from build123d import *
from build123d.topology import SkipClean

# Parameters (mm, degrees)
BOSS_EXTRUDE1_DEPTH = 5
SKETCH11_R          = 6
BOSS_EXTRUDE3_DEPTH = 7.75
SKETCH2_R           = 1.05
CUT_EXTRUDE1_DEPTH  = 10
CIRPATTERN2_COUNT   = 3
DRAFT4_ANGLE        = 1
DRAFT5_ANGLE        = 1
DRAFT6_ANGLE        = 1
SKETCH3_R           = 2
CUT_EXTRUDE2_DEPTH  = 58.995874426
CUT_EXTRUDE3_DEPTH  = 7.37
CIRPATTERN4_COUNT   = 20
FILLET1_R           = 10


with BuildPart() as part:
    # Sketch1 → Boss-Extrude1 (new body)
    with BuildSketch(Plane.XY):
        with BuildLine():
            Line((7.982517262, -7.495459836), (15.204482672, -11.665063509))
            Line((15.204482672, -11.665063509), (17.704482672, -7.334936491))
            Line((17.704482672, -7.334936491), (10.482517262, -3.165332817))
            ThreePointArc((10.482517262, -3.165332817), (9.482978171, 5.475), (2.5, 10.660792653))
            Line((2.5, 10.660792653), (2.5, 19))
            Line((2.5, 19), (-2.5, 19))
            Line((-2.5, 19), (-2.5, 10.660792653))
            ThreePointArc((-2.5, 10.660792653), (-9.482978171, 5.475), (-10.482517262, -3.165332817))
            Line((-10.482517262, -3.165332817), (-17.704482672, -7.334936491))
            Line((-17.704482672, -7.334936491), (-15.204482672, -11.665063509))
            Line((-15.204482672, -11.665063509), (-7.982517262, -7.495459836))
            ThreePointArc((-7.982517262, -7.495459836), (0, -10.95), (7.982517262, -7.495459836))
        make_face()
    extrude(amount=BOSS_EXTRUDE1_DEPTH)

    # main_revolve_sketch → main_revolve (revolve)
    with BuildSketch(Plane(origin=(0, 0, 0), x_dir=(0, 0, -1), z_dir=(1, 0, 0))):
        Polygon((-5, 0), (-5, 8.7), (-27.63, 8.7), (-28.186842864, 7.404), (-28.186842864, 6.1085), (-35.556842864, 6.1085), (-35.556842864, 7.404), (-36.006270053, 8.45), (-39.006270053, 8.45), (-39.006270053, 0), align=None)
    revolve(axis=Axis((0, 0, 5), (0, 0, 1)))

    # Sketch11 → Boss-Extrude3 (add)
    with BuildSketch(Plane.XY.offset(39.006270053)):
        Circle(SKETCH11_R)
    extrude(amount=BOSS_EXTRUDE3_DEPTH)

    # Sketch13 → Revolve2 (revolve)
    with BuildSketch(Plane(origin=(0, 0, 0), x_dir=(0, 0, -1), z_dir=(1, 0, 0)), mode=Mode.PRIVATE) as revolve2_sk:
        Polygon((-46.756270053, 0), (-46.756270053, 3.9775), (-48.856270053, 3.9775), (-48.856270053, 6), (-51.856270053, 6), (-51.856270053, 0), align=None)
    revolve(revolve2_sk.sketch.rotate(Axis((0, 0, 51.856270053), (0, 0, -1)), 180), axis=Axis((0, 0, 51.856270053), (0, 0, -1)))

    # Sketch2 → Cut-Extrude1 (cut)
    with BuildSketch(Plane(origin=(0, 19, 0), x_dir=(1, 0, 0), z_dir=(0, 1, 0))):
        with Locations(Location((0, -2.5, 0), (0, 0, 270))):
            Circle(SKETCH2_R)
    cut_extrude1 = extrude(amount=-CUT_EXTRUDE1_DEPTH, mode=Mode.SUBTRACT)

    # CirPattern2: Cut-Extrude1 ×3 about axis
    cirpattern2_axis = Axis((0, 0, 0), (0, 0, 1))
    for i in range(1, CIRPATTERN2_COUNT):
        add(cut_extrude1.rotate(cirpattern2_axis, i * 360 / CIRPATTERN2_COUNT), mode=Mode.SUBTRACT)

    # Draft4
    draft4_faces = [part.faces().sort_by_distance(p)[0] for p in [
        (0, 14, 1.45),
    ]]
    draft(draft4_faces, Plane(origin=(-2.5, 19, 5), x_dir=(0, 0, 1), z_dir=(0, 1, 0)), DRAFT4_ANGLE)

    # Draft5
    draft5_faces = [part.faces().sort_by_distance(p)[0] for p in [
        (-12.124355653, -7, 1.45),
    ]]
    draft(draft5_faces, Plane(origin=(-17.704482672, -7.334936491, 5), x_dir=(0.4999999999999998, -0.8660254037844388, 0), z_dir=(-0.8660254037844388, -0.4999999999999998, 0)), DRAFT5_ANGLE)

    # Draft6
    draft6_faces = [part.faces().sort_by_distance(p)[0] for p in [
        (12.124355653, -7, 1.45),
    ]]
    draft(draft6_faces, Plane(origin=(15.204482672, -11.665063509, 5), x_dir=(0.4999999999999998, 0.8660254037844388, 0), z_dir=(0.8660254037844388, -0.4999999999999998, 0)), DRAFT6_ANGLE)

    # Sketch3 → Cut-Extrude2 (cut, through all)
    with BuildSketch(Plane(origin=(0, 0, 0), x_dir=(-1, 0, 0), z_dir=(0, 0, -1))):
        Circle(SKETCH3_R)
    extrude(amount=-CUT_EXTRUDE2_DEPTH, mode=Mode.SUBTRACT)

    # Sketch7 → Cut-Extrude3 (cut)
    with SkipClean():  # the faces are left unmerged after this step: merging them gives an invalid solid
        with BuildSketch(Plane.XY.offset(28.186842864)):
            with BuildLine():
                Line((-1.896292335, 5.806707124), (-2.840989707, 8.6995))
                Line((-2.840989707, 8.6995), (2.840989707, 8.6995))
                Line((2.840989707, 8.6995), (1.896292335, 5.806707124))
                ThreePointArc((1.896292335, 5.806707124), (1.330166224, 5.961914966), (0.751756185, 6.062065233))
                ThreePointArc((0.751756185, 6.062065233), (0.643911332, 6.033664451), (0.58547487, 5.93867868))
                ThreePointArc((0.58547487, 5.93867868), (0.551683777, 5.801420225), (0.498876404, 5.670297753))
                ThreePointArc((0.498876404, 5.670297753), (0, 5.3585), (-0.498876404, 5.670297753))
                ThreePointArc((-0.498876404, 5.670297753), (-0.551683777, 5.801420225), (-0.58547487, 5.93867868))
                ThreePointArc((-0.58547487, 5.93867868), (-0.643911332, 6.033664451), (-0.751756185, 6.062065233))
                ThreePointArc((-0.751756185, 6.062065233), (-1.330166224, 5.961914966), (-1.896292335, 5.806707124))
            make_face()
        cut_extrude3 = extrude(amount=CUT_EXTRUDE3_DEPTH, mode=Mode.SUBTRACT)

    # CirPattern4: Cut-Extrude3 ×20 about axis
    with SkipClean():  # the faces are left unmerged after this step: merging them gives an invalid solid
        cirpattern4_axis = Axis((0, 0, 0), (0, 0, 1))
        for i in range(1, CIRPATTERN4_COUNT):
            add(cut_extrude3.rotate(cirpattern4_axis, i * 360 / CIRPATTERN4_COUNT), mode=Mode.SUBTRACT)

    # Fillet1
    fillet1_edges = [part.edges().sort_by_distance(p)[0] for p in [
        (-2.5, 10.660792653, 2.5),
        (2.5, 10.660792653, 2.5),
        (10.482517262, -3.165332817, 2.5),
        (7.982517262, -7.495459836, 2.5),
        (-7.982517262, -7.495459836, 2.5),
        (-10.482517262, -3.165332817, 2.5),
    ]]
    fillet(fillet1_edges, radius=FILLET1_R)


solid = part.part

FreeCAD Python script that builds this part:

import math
import FreeCAD as App
import Part
import Sketcher
Q = App.Units.Quantity


def edges_at(feature, points):
    """Names of the edges that pass closest to the given points."""
    edges = feature.Shape.Edges
    near = lambda p: min(range(len(edges)), key=lambda i: edges[i].distToShape(Part.Vertex(*p))[0])
    return sorted({f"Edge{near(p) + 1}" for p in points})


def faces_at(feature, points):
    """Names of the faces that lie closest to the given points."""
    faces = feature.Shape.Faces
    near = lambda p: min(range(len(faces)), key=lambda i: faces[i].distToShape(Part.Vertex(*p))[0])
    return sorted({f"Face{near(p) + 1}" for p in points})


def add_polygon(sketch, points):
    """Adds a closed chain of lines whose ends are joined by coincident constraints."""
    first, n = sketch.GeometryCount, len(points)
    for a, b in zip(points, points[1:] + points[:1]):
        sketch.addGeometry(Part.LineSegment(App.Vector(*a, 0), App.Vector(*b, 0)), False)
    for i in range(n):
        sketch.addConstraint(Sketcher.Constraint("Coincident", first + i, 2, first + (i + 1) % n, 1))

doc = App.newDocument("Part")
params = doc.addObject("Spreadsheet::Sheet", "Params")
for row, (alias, value) in enumerate([
    ("sketch1_width", "5 mm"),
    ("sketch1_radius", "10.95 mm"),
    ("sketch1_length", "5 mm"),
    ("pad1_length", "5 mm"),
    ("sketch2_height", "3 mm"),
    ("sketch2_width", "8.7 mm"),
    ("sketch2_width2", "8.45 mm"),
    ("sketch2_height2", "22.63 mm"),
    ("sketch2_height3", "7.37 mm"),
    ("revolution_angle", "360 deg"),
    ("sketch3_diameter", "12 mm"),
    ("pad2_length", "7.75 mm"),
    ("sketch4_width", "6 mm"),
    ("sketch4_height", "3 mm"),
    ("sketch4_height2", "2.1 mm"),
    ("revolution2_angle", "360 deg"),
    ("sketch5_diameter", "2.1 mm"),
    ("pocket1_length", "10 mm"),
    ("draft_angle", "1 deg"),
    ("draft2_angle", "1 deg"),
    ("draft3_angle", "1 deg"),
    ("sketch6_diameter", "4 mm"),
    ("sketch7_radius", "1 mm"),
    ("sketch7_radius2", "0.15 mm"),
    ("pocket3_length", "7.37 mm"),
    ("fillet_radius", "10 mm"),
], start=1):
    params.set(f"A{row}", alias)
    params.set(f"B{row}", "=" + value)
    params.setAlias(f"B{row}", alias)

body = doc.addObject("PartDesign::Body", "Body")

sketch1 = body.newObject("Sketcher::SketchObject", "Sketch")
sketch1.AttachmentSupport = (doc.getObject("XY_Plane"), [""])
sketch1.MapMode = "FlatFace"
sketch1.addGeometry(Part.LineSegment(App.Vector(8, -7.5, 0), App.Vector(15.2, -11.7, 0)), False)
sketch1.addGeometry(Part.LineSegment(App.Vector(15.2, -11.7, 0), App.Vector(17.7, -7.3, 0)), False)
sketch1.addGeometry(Part.LineSegment(App.Vector(17.7, -7.3, 0), App.Vector(10.5, -3.2, 0)), False)
sketch1.addGeometry(Part.ArcOfCircle(Part.Circle(App.Vector(0, 0, 0), App.Vector(0, 0, 1), 10.9), math.radians(-17), math.radians(77)), False)
sketch1.addGeometry(Part.LineSegment(App.Vector(2.5, 10.7, 0), App.Vector(2.5, 19, 0)), False)
sketch1.addGeometry(Part.LineSegment(App.Vector(2.5, 19, 0), App.Vector(-2.5, 19, 0)), False)
sketch1.addGeometry(Part.LineSegment(App.Vector(-2.5, 19, 0), App.Vector(-2.5, 10.7, 0)), False)
sketch1.addGeometry(Part.ArcOfCircle(Part.Circle(App.Vector(0, 0, 0), App.Vector(0, 0, 1), 10.9), math.radians(103), math.radians(197)), False)
sketch1.addGeometry(Part.LineSegment(App.Vector(-10.5, -3.2, 0), App.Vector(-17.7, -7.3, 0)), False)
sketch1.addGeometry(Part.LineSegment(App.Vector(-17.7, -7.3, 0), App.Vector(-15.2, -11.7, 0)), False)
sketch1.addGeometry(Part.LineSegment(App.Vector(-15.2, -11.7, 0), App.Vector(-8, -7.5, 0)), False)
sketch1.addGeometry(Part.ArcOfCircle(Part.Circle(App.Vector(0, 0, 0), App.Vector(0, 0, 1), 10.9), math.radians(-137), math.radians(-43)), False)
sketch1.addConstraint(Sketcher.Constraint("Coincident", 0, 2, 1, 1))
sketch1.addConstraint(Sketcher.Constraint("Coincident", 1, 2, 2, 1))
sketch1.addConstraint(Sketcher.Constraint("Coincident", 2, 2, 3, 1))
sketch1.addConstraint(Sketcher.Constraint("Coincident", 3, 2, 4, 1))
sketch1.addConstraint(Sketcher.Constraint("Coincident", 4, 2, 5, 1))
sketch1.addConstraint(Sketcher.Constraint("Coincident", 5, 2, 6, 1))
sketch1.addConstraint(Sketcher.Constraint("Coincident", 6, 2, 7, 1))
sketch1.addConstraint(Sketcher.Constraint("Coincident", 7, 2, 8, 1))
sketch1.addConstraint(Sketcher.Constraint("Coincident", 8, 2, 9, 1))
sketch1.addConstraint(Sketcher.Constraint("Coincident", 9, 2, 10, 1))
sketch1.addConstraint(Sketcher.Constraint("Coincident", 10, 2, 11, 1))
sketch1.addConstraint(Sketcher.Constraint("Coincident", 11, 2, 0, 1))
sketch1.addConstraint(Sketcher.Constraint("Vertical", 4))
sketch1.addConstraint(Sketcher.Constraint("Horizontal", 5))
sketch1.addConstraint(Sketcher.Constraint("Vertical", 6))
sketch1.addConstraint(Sketcher.Constraint("Coincident", 3, 3, -1, 1))
sketch1.addConstraint(Sketcher.Constraint("Coincident", 7, 3, -1, 1))
sketch1.addConstraint(Sketcher.Constraint("Coincident", 11, 3, -1, 1))
sketch1.addConstraint(Sketcher.Constraint("Equal", 3, 7))
sketch1.addConstraint(Sketcher.Constraint("Equal", 7, 11))
sketch1.addConstraint(Sketcher.Constraint("Symmetric", 1, 2, 8, 2, -2))
sketch1.addConstraint(Sketcher.Constraint("Symmetric", 0, 2, 9, 2, -2))
sketch1.addConstraint(Sketcher.Constraint("Perpendicular", 0, 1))
sketch1.addConstraint(Sketcher.Constraint("Perpendicular", 1, 2))
sketch1.addConstraint(Sketcher.Constraint("Perpendicular", 8, 9))
sketch1.addConstraint(Sketcher.Constraint("Perpendicular", 9, 10))
sketch1.addConstraint(Sketcher.Constraint("Horizontal", 3, 2, 6, 2))
sketch1.addConstraint(Sketcher.Constraint("Equal", 0, 2))
sketch1.addConstraint(Sketcher.Constraint("DistanceX", 5, 2, 5, 1, Q("5 mm")))
sketch1.addConstraint(Sketcher.Constraint("Angle", 0, Q("-30 deg")))
sketch1.addConstraint(Sketcher.Constraint("Radius", 3, Q("10.95 mm")))
sketch1.addConstraint(Sketcher.Constraint("Distance", 1, Q("5 mm")))
sketch1.addConstraint(Sketcher.Constraint("DistanceY", -1, 1, 4, 2, Q("19 mm")))
sketch1.addConstraint(Sketcher.Constraint("DistanceY", 0, 2, 2, 2, Q("8.499731 mm")))
sketch1.setExpression("Constraints[28]", "Params.sketch1_width")
sketch1.setExpression("Constraints[30]", "Params.sketch1_radius")
sketch1.setExpression("Constraints[31]", "Params.sketch1_length")
pad1 = body.newObject("PartDesign::Pad", "Pad")
pad1.Profile = sketch1
pad1.setExpression("Length", "Params.pad1_length")

sketch2 = body.newObject("Sketcher::SketchObject", "Sketch001")
sketch2.AttachmentSupport = (doc.getObject("YZ_Plane"), [""])
sketch2.MapMode = "FlatFace"
add_polygon(sketch2, [(0, 5), (8.7, 5), (8.7, 27.6), (7.4, 28.2), (6.1, 28.2), (6.1, 35.6), (7.4, 35.6), (8.4, 36), (8.4, 39), (0, 39)])
sketch2.addConstraint(Sketcher.Constraint("Horizontal", 0))
sketch2.addConstraint(Sketcher.Constraint("Vertical", 1))
sketch2.addConstraint(Sketcher.Constraint("Horizontal", 3))
sketch2.addConstraint(Sketcher.Constraint("Vertical", 4))
sketch2.addConstraint(Sketcher.Constraint("Horizontal", 5))
sketch2.addConstraint(Sketcher.Constraint("Vertical", 7))
sketch2.addConstraint(Sketcher.Constraint("Horizontal", 8))
sketch2.addConstraint(Sketcher.Constraint("Vertical", 9))
sketch2.addConstraint(Sketcher.Constraint("PointOnObject", 8, 2, -2))
sketch2.addConstraint(Sketcher.Constraint("Vertical", 2, 2, 5, 2))
sketch2.addConstraint(Sketcher.Constraint("DistanceY", 7, 1, 7, 2, Q("3 mm")))
sketch2.addConstraint(Sketcher.Constraint("DistanceX", 0, 1, 0, 2, Q("8.7 mm")))
sketch2.addConstraint(Sketcher.Constraint("DistanceY", -1, 1, 0, 2, Q("5 mm")))
sketch2.addConstraint(Sketcher.Constraint("DistanceX", 8, 2, 8, 1, Q("8.45 mm")))
sketch2.addConstraint(Sketcher.Constraint("DistanceY", 1, 1, 1, 2, Q("22.63 mm")))
sketch2.addConstraint(Sketcher.Constraint("DistanceY", 4, 1, 4, 2, Q("7.37 mm")))
sketch2.addConstraint(Sketcher.Constraint("DistanceX", 3, 2, 3, 1, Q("1.2955 mm")))
sketch2.addConstraint(Sketcher.Constraint("DistanceX", -1, 1, 2, 2, Q("7.404 mm")))
sketch2.addConstraint(Sketcher.Constraint("DistanceY", 9, 2, 9, 1, Q("34.00627 mm")))
sketch2.addConstraint(Sketcher.Constraint("Distance", 2, Q("1.410564 mm")))
sketch2.setExpression("Constraints[20]", "Params.sketch2_height")
sketch2.setExpression("Constraints[21]", "Params.sketch2_width")
sketch2.setExpression("Constraints[23]", "Params.sketch2_width2")
sketch2.setExpression("Constraints[24]", "Params.sketch2_height2")
sketch2.setExpression("Constraints[25]", "Params.sketch2_height3")
revolution = body.newObject("PartDesign::Revolution", "Revolution")
revolution.Profile = sketch2
revolution.ReferenceAxis = (sketch2, ["V_Axis"])
revolution.setExpression("Angle", "Params.revolution_angle")

sketch3 = body.newObject("Sketcher::SketchObject", "Sketch002")
sketch3.AttachmentSupport = (doc.getObject("XY_Plane"), [""])
sketch3.MapMode = "FlatFace"
sketch3.AttachmentOffset = App.Placement(App.Vector(0, 0, 39.00627), App.Rotation())
sketch3.addGeometry(Part.Circle(App.Vector(0, 0, 0), App.Vector(0, 0, 1), 6), False)
sketch3.addConstraint(Sketcher.Constraint("Coincident", 0, 3, -1, 1))
sketch3.addConstraint(Sketcher.Constraint("Diameter", 0, Q("12 mm")))
sketch3.setExpression("Constraints[1]", "Params.sketch3_diameter")
pad2 = body.newObject("PartDesign::Pad", "Pad001")
pad2.Profile = sketch3
pad2.setExpression("Length", "Params.pad2_length")

sketch4 = body.newObject("Sketcher::SketchObject", "Sketch003")
sketch4.AttachmentSupport = (doc.getObject("YZ_Plane"), [""])
sketch4.MapMode = "FlatFace"
add_polygon(sketch4, [(0, 46.8), (4, 46.8), (4, 48.9), (6, 48.9), (6, 51.9), (0, 51.9)])
sketch4.addConstraint(Sketcher.Constraint("Horizontal", 0))
sketch4.addConstraint(Sketcher.Constraint("Vertical", 1))
sketch4.addConstraint(Sketcher.Constraint("Horizontal", 2))
sketch4.addConstraint(Sketcher.Constraint("Vertical", 3))
sketch4.addConstraint(Sketcher.Constraint("Horizontal", 4))
sketch4.addConstraint(Sketcher.Constraint("Vertical", 5))
sketch4.addConstraint(Sketcher.Constraint("PointOnObject", 4, 2, -2))
sketch4.addConstraint(Sketcher.Constraint("DistanceX", 4, 2, 4, 1, Q("6 mm")))
sketch4.addConstraint(Sketcher.Constraint("DistanceY", 3, 1, 3, 2, Q("3 mm")))
sketch4.addConstraint(Sketcher.Constraint("DistanceY", 1, 1, 1, 2, Q("2.1 mm")))
sketch4.addConstraint(Sketcher.Constraint("DistanceX", 0, 1, 0, 2, Q("3.9775 mm")))
sketch4.addConstraint(Sketcher.Constraint("DistanceY", -1, 1, 0, 2, Q("46.75627 mm")))
sketch4.setExpression("Constraints[13]", "Params.sketch4_width")
sketch4.setExpression("Constraints[14]", "Params.sketch4_height")
sketch4.setExpression("Constraints[15]", "Params.sketch4_height2")
revolution2 = body.newObject("PartDesign::Revolution", "Revolution001")
revolution2.Profile = sketch4
revolution2.ReferenceAxis = (sketch4, ["V_Axis"])
revolution2.setExpression("Angle", "Params.revolution2_angle")

sketch5 = body.newObject("Sketcher::SketchObject", "Sketch004")
sketch5.AttachmentSupport = (doc.getObject("XZ_Plane"), [""])
sketch5.MapMode = "FlatFace"
sketch5.AttachmentOffset = App.Placement(App.Vector(0, 0, -19), App.Rotation())
sketch5.addGeometry(Part.Circle(App.Vector(0, 2.5, 0), App.Vector(0, 0, 1), 1.1), False)
sketch5.addConstraint(Sketcher.Constraint("PointOnObject", 0, 3, -2))
sketch5.addConstraint(Sketcher.Constraint("Diameter", 0, Q("2.1 mm")))
sketch5.addConstraint(Sketcher.Constraint("DistanceY", -1, 1, 0, 3, Q("2.5 mm")))
sketch5.setExpression("Constraints[1]", "Params.sketch5_diameter")
pocket1 = body.newObject("PartDesign::Pocket", "Pocket")
pocket1.Profile = sketch5
pocket1.setExpression("Length", "Params.pocket1_length")
pocket1.Reversed = True
doc.recompute()

polarpattern = body.newObject("PartDesign::PolarPattern", "PolarPattern")
polarpattern.Originals = [pocket1]
polarpattern.Axis = (doc.getObject("Z_Axis"), [""])
polarpattern.Angle = 360
polarpattern.Occurrences = 3
body.Tip = polarpattern
doc.recompute()

datumplane = body.newObject("PartDesign::Plane", "DatumPlane")
datumplane.AttachmentSupport = (doc.getObject("XZ_Plane"), [""])
datumplane.MapMode = "FlatFace"
datumplane.AttachmentOffset = App.Placement(App.Vector(0, 0, -19), App.Rotation())
draft = body.newObject("PartDesign::Draft", "Draft")
draft.Base = (polarpattern, faces_at(polarpattern, [(0, 14, 1.45)]))
draft.NeutralPlane = (datumplane, [""])
draft.setExpression("Angle", "Params.draft_angle")
draft.Reversed = True
doc.recompute()

datumplane2 = body.newObject("PartDesign::Plane", "DatumPlane001")
datumplane2.Placement = App.Placement(App.Vector(-16.454483, -9.5, 0), App.Rotation(App.Vector(-0.5, 0.866025404, 0), App.Vector(0, 0, -1), App.Vector(-0.866025404, -0.5, 0), "ZXY"))
draft2 = body.newObject("PartDesign::Draft", "Draft001")
draft2.Base = (draft, faces_at(draft, [(-12.124, -7, 1.45)]))
draft2.NeutralPlane = (datumplane2, [""])
draft2.setExpression("Angle", "Params.draft2_angle")
draft2.Reversed = False
doc.recompute()

datumplane3 = body.newObject("PartDesign::Plane", "DatumPlane002")
datumplane3.Placement = App.Placement(App.Vector(16.454483, -9.5, 0), App.Rotation(App.Vector(-0.5, -0.866025404, 0), App.Vector(0, 0, -1), App.Vector(0.866025404, -0.5, 0), "ZXY"))
draft3 = body.newObject("PartDesign::Draft", "Draft002")
draft3.Base = (draft2, faces_at(draft2, [(12.124, -7, 1.45)]))
draft3.NeutralPlane = (datumplane3, [""])
draft3.setExpression("Angle", "Params.draft3_angle")
draft3.Reversed = False

sketch6 = body.newObject("Sketcher::SketchObject", "Sketch005")
sketch6.AttachmentSupport = (doc.getObject("XY_Plane"), [""])
sketch6.MapMode = "FlatFace"
sketch6.addGeometry(Part.Circle(App.Vector(0, 0, 0), App.Vector(0, 0, 1), 2), False)
sketch6.addConstraint(Sketcher.Constraint("Coincident", 0, 3, -1, 1))
sketch6.addConstraint(Sketcher.Constraint("Diameter", 0, Q("4 mm")))
sketch6.setExpression("Constraints[1]", "Params.sketch6_diameter")
pocket2 = body.newObject("PartDesign::Pocket", "Pocket001")
pocket2.Profile = sketch6
pocket2.Type = "ThroughAll"
pocket2.Reversed = True

sketch7 = body.newObject("Sketcher::SketchObject", "Sketch006")
sketch7.AttachmentSupport = (doc.getObject("XY_Plane"), [""])
sketch7.MapMode = "FlatFace"
sketch7.AttachmentOffset = App.Placement(App.Vector(0, 0, 28.186843), App.Rotation())
sketch7.addGeometry(Part.LineSegment(App.Vector(-2.84, 8.7, 0), App.Vector(-1.9, 5.81, 0)), False)
sketch7.addGeometry(Part.ArcOfCircle(Part.Circle(App.Vector(0, 0, 0), App.Vector(0, 0, 1), 6.11), math.radians(97.07), math.radians(108.09)), False)
sketch7.addGeometry(Part.ArcOfCircle(Part.Circle(App.Vector(-0.73, 5.91, 0), App.Vector(0, 0, 1), 0.15), math.radians(10), math.radians(97)), False)
sketch7.addGeometry(Part.ArcOfCircle(Part.Circle(App.Vector(0.4, 6.11, 0), App.Vector(0, 0, 1), 1), math.radians(-170.22), math.radians(-154.01)), False)
sketch7.addGeometry(Part.ArcOfCircle(Part.Circle(App.Vector(0, 5.91, 0), App.Vector(0, 0, 1), 0.55), math.radians(-154), math.radians(-26)), False)
sketch7.addGeometry(Part.ArcOfCircle(Part.Circle(App.Vector(-0.4, 6.11, 0), App.Vector(0, 0, 1), 1), math.radians(-25.99), math.radians(-9.78)), False)
sketch7.addGeometry(Part.ArcOfCircle(Part.Circle(App.Vector(0.73, 5.91, 0), App.Vector(0, 0, 1), 0.15), math.radians(83), math.radians(170)), False)
sketch7.addGeometry(Part.ArcOfCircle(Part.Circle(App.Vector(0, 0, 0), App.Vector(0, 0, 1), 6.11), math.radians(71.91), math.radians(82.93)), False)
sketch7.addGeometry(Part.LineSegment(App.Vector(1.9, 5.81, 0), App.Vector(2.84, 8.7, 0)), False)
sketch7.addGeometry(Part.LineSegment(App.Vector(2.84, 8.7, 0), App.Vector(-2.84, 8.7, 0)), False)
sketch7.addConstraint(Sketcher.Constraint("Coincident", 0, 2, 1, 2))
sketch7.addConstraint(Sketcher.Constraint("Tangent", 1, 1, 2, 2))
sketch7.addConstraint(Sketcher.Constraint("Tangent", 2, 1, 3, 1))
sketch7.addConstraint(Sketcher.Constraint("Tangent", 3, 2, 4, 1))
sketch7.addConstraint(Sketcher.Constraint("Tangent", 4, 2, 5, 1))
sketch7.addConstraint(Sketcher.Constraint("Tangent", 5, 2, 6, 2))
sketch7.addConstraint(Sketcher.Constraint("Tangent", 6, 1, 7, 2))
sketch7.addConstraint(Sketcher.Constraint("Coincident", 7, 1, 8, 1))
sketch7.addConstraint(Sketcher.Constraint("Coincident", 8, 2, 9, 1))
sketch7.addConstraint(Sketcher.Constraint("Coincident", 9, 2, 0, 1))
sketch7.addConstraint(Sketcher.Constraint("Horizontal", 9))
sketch7.addConstraint(Sketcher.Constraint("Coincident", 1, 3, -1, 1))
sketch7.addConstraint(Sketcher.Constraint("Coincident", 7, 3, -1, 1))
sketch7.addConstraint(Sketcher.Constraint("Equal", 3, 5))
sketch7.addConstraint(Sketcher.Constraint("Equal", 2, 6))
sketch7.addConstraint(Sketcher.Constraint("Equal", 1, 7))
sketch7.addConstraint(Sketcher.Constraint("Symmetric", 3, 3, 5, 3, -2))
sketch7.addConstraint(Sketcher.Constraint("Horizontal", 0, 2, 7, 1))
sketch7.addConstraint(Sketcher.Constraint("Equal", 0, 8))
sketch7.addConstraint(Sketcher.Constraint("Radius", 3, Q("1 mm")))
sketch7.addConstraint(Sketcher.Constraint("Radius", 2, Q("0.15 mm")))
sketch7.addConstraint(Sketcher.Constraint("Radius", 4, Q("0.555 mm")))
sketch7.addConstraint(Sketcher.Constraint("DistanceX", -1, 1, 3, 3, Q("0.4 mm")))
sketch7.addConstraint(Sketcher.Constraint("Radius", 1, Q("6.1085 mm")))
sketch7.addConstraint(Sketcher.Constraint("DistanceY", 3, 3, 8, 2, Q("2.591 mm")))
sketch7.addConstraint(Sketcher.Constraint("DistanceX", 9, 2, 9, 1, Q("5.681979 mm")))
sketch7.addConstraint(Sketcher.Constraint("DistanceY", -1, 1, 3, 3, Q("6.1085 mm")))
sketch7.addConstraint(Sketcher.Constraint("DistanceY", 0, 2, 2, 3, Q("0.106498 mm")))
sketch7.setExpression("Constraints[19]", "Params.sketch7_radius")
sketch7.setExpression("Constraints[20]", "Params.sketch7_radius2")
pocket3 = body.newObject("PartDesign::Pocket", "Pocket002")
pocket3.Profile = sketch7
pocket3.setExpression("Length", "Params.pocket3_length")
pocket3.Reversed = True
doc.recompute()

polarpattern2 = body.newObject("PartDesign::PolarPattern", "PolarPattern001")
polarpattern2.Originals = [pocket3]
polarpattern2.Axis = (doc.getObject("Z_Axis"), [""])
polarpattern2.Angle = 360
polarpattern2.Occurrences = 20
body.Tip = polarpattern2
doc.recompute()

fillet = body.newObject("PartDesign::Fillet", "Fillet")
fillet.Base = (polarpattern2, edges_at(polarpattern2, [
    (-2.5, 10.661, 2.5),
    (2.5, 10.661, 2.5),
    (10.483, -3.165, 2.5),
    (7.983, -7.495, 2.5),
    (-7.983, -7.495, 2.5),
    (-10.483, -3.165, 2.5),
]))
fillet.setExpression("Radius", "Params.fillet_radius")

doc.recompute()
